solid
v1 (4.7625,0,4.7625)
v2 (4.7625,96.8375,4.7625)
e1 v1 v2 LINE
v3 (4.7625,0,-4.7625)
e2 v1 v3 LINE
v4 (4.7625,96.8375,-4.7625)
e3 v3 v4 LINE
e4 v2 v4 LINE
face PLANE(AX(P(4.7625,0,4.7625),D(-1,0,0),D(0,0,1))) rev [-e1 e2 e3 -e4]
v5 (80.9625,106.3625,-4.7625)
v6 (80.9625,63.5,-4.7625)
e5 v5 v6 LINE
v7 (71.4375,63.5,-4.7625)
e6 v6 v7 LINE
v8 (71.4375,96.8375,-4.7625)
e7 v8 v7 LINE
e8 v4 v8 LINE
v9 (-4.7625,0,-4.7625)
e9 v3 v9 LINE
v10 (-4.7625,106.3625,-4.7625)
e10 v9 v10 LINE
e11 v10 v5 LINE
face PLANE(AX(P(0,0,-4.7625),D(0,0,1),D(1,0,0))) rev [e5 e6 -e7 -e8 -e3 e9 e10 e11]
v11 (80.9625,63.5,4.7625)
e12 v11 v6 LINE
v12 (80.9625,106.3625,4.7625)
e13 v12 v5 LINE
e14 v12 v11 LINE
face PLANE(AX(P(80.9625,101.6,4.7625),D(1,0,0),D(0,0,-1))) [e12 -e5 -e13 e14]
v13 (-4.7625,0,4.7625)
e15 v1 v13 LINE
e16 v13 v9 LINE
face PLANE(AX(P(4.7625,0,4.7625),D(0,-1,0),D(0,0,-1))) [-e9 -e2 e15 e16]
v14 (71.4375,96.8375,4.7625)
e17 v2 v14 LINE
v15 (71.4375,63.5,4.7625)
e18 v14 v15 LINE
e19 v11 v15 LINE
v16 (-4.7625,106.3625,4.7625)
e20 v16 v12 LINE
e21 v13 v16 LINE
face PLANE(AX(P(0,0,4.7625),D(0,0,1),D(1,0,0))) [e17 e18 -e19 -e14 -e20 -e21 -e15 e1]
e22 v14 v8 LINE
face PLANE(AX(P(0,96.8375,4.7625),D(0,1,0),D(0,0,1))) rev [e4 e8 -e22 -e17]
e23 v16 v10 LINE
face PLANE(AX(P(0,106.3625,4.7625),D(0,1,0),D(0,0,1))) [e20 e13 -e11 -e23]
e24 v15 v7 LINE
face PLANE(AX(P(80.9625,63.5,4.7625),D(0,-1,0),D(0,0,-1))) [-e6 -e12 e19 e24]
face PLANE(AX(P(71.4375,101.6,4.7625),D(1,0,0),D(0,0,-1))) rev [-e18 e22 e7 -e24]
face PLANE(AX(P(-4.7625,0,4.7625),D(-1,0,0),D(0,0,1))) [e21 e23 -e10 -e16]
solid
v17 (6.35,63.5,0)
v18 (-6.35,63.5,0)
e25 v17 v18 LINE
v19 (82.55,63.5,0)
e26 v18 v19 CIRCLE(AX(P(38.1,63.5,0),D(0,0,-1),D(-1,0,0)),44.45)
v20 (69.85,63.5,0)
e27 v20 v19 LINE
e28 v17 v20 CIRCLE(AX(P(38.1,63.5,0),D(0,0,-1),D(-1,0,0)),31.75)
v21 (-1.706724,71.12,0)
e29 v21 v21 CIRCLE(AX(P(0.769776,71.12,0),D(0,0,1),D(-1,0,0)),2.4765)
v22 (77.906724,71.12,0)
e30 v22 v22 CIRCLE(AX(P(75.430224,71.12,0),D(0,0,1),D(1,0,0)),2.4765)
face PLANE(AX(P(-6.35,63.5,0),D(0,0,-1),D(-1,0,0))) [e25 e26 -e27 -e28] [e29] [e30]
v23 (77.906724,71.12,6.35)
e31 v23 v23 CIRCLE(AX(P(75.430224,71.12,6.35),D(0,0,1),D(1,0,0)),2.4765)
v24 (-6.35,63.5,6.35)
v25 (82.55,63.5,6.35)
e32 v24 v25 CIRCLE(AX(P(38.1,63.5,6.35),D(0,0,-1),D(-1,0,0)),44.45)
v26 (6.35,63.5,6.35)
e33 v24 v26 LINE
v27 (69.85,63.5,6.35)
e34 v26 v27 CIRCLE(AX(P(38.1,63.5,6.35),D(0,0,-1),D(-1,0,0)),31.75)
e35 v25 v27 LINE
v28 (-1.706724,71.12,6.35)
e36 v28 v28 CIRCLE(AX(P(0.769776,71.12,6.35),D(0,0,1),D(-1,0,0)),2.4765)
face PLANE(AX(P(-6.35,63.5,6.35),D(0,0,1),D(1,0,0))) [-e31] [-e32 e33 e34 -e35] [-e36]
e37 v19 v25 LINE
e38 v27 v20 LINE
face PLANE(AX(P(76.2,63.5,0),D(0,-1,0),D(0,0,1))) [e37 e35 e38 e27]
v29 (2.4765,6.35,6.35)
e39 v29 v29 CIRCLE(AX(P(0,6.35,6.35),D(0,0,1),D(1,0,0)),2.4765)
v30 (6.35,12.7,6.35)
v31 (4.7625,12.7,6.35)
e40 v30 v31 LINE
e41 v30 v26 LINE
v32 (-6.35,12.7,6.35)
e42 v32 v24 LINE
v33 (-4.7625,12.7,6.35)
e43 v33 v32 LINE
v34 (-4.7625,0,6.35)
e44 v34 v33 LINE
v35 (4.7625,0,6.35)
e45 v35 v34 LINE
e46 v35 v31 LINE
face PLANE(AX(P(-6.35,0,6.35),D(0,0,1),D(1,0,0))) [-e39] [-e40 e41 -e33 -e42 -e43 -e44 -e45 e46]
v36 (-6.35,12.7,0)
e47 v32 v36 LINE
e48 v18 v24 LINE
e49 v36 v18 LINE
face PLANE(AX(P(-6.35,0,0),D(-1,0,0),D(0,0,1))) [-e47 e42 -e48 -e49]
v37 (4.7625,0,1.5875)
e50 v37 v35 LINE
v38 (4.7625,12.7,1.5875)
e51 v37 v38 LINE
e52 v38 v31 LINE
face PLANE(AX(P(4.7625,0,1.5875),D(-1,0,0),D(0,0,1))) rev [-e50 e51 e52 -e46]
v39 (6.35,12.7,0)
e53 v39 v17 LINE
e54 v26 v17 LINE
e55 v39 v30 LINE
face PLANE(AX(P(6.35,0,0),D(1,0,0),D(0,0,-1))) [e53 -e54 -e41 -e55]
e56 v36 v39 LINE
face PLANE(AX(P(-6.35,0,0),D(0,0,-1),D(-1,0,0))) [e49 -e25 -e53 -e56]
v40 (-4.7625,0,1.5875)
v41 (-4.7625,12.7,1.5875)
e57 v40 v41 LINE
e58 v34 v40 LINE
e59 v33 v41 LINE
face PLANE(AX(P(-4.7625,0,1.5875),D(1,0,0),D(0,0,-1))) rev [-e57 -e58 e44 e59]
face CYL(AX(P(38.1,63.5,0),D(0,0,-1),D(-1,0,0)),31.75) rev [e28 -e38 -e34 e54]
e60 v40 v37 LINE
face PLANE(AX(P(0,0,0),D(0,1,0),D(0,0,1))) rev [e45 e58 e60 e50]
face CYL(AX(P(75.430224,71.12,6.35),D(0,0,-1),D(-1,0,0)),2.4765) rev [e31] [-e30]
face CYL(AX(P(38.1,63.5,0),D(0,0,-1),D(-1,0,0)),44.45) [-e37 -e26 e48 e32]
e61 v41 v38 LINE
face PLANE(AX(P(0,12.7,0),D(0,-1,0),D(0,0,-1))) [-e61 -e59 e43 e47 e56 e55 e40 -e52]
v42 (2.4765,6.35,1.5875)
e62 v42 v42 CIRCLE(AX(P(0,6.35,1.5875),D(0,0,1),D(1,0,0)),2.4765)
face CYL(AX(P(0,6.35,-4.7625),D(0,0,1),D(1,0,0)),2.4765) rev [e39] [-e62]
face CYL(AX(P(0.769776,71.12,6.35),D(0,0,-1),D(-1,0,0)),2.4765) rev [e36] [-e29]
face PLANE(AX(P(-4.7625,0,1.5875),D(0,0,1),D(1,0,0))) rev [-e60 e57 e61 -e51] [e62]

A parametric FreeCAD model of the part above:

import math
import FreeCAD as App
import Part
import Sketcher
Q = App.Units.Quantity

doc = App.newDocument("Part")
body = doc.addObject("PartDesign::Body", "Body")

sketch1 = body.newObject("Sketcher::SketchObject", "Sketch")
sketch1.AttachmentSupport = (doc.getObject("XY_Plane"), [""])
sketch1.MapMode = "FlatFace"
sketch1.addGeometry(Part.LineSegment(App.Vector(5, 0, 0), App.Vector(5, 97, 0)), False)
sketch1.addGeometry(Part.LineSegment(App.Vector(5, 97, 0), App.Vector(71, 97, 0)), False)
sketch1.addGeometry(Part.LineSegment(App.Vector(71, 97, 0), App.Vector(71, 64, 0)), False)
sketch1.addGeometry(Part.LineSegment(App.Vector(71, 64, 0), App.Vector(81, 64, 0)), False)
sketch1.addGeometry(Part.LineSegment(App.Vector(81, 64, 0), App.Vector(81, 106, 0)), False)
sketch1.addGeometry(Part.LineSegment(App.Vector(81, 106, 0), App.Vector(-5, 106, 0)), False)
sketch1.addGeometry(Part.LineSegment(App.Vector(-5, 106, 0), App.Vector(-5, 0, 0)), False)
sketch1.addGeometry(Part.LineSegment(App.Vector(-5, 0, 0), App.Vector(5, 0, 0)), False)
sketch1.addConstraint(Sketcher.Constraint("Coincident", 0, 2, 1, 1))
sketch1.addConstraint(Sketcher.Constraint("Coincident", 1, 2, 2, 1))
sketch1.addConstraint(Sketcher.Constraint("Coincident", 2, 2, 3, 1))
sketch1.addConstraint(Sketcher.Constraint("Coincident", 3, 2, 4, 1))
sketch1.addConstraint(Sketcher.Constraint("Coincident", 4, 2, 5, 1))
sketch1.addConstraint(Sketcher.Constraint("Coincident", 5, 2, 6, 1))
sketch1.addConstraint(Sketcher.Constraint("Coincident", 6, 2, 7, 1))
sketch1.addConstraint(Sketcher.Constraint("Coincident", 7, 2, 0, 1))
sketch1.addConstraint(Sketcher.Constraint("Vertical", 0))
sketch1.addConstraint(Sketcher.Constraint("Horizontal", 1))
sketch1.addConstraint(Sketcher.Constraint("Vertical", 2))
sketch1.addConstraint(Sketcher.Constraint("Horizontal", 3))
sketch1.addConstraint(Sketcher.Constraint("Vertical", 4))
sketch1.addConstraint(Sketcher.Constraint("Horizontal", 5))
sketch1.addConstraint(Sketcher.Constraint("Vertical", 6))
sketch1.addConstraint(Sketcher.Constraint("Horizontal", 7))
sketch1.addConstraint(Sketcher.Constraint("Symmetric", 6, 2, 7, 2, -1, 1))
sketch1.addConstraint(Sketcher.Constraint("Equal", 3, 7))
sketch1.addConstraint(Sketcher.Constraint("DistanceX", 0, 2, 3, 2, Q("3 in")))
sketch1.addConstraint(Sketcher.Constraint("DistanceY", -1, 1, 2, 2, Q("2.5 in")))
sketch1.addConstraint(Sketcher.Constraint("DistanceX", 1, 1, 1, 2, Q("2.625 in")))
sketch1.addConstraint(Sketcher.Constraint("DistanceY", 0, 1, 0, 2, Q("3.8125 in")))
sketch1.addConstraint(Sketcher.Constraint("DistanceY", 4, 1, 4, 2, Q("1.6875 in")))
pad1 = body.newObject("PartDesign::Pad", "Pad")
pad1.Profile = sketch1
pad1.Length = Q("0.375 in")
pad1.Midplane = True
body2 = doc.addObject("PartDesign::Body", "Body001")

sketch2 = body2.newObject("Sketcher::SketchObject", "Sketch001")
sketch2.AttachmentSupport = (doc.getObject("XZ_Plane001"), [""])
sketch2.MapMode = "FlatFace"
sketch2.addGeometry(Part.LineSegment(App.Vector(-6, 0, 0), App.Vector(-6, 6, 0)), False)
sketch2.addGeometry(Part.LineSegment(App.Vector(-6, 6, 0), App.Vector(6, 6, 0)), False)
sketch2.addGeometry(Part.LineSegment(App.Vector(6, 6, 0), App.Vector(6, 0, 0)), False)
sketch2.addGeometry(Part.LineSegment(App.Vector(6, 0, 0), App.Vector(-6, 0, 0)), False)
sketch2.addConstraint(Sketcher.Constraint("Coincident", 0, 2, 1, 1))
sketch2.addConstraint(Sketcher.Constraint("Coincident", 1, 2, 2, 1))
sketch2.addConstraint(Sketcher.Constraint("Coincident", 2, 2, 3, 1))
sketch2.addConstraint(Sketcher.Constraint("Coincident", 3, 2, 0, 1))
sketch2.addConstraint(Sketcher.Constraint("Vertical", 0))
sketch2.addConstraint(Sketcher.Constraint("Horizontal", 1))
sketch2.addConstraint(Sketcher.Constraint("Vertical", 2))
sketch2.addConstraint(Sketcher.Constraint("Horizontal", 3))
sketch2.addConstraint(Sketcher.Constraint("Symmetric", 2, 2, 3, 2, -1, 1))
sketch2.addConstraint(Sketcher.Constraint("DistanceX", 1, 1, 1, 2, Q("0.5 in")))
sketch2.addConstraint(Sketcher.Constraint("DistanceY", 0, 1, 0, 2, Q("0.25 in")))

sketch3 = body2.newObject("Sketcher::SketchObject", "Sketch002")
sketch3.AttachmentSupport = (doc.getObject("XY_Plane001"), [""])
sketch3.MapMode = "FlatFace"
sketch3.addGeometry(Part.LineSegment(App.Vector(0, 0, 0), App.Vector(0, 64, 0)), False)
sketch3.addGeometry(Part.ArcOfCircle(Part.Circle(App.Vector(38, 64, 0), App.Vector(0, 0, 1), 38), math.radians(0), math.radians(180)), False)
sketch3.addConstraint(Sketcher.Constraint("Tangent", 0, 2, 1, 2))
sketch3.addConstraint(Sketcher.Constraint("Vertical", 0))
sketch3.addConstraint(Sketcher.Constraint("Coincident", 0, 1, -1, 1))
sketch3.addConstraint(Sketcher.Constraint("Horizontal", 0, 2, 1, 1))
sketch3.addConstraint(Sketcher.Constraint("Radius", 1, Q("1.5 in")))
sketch3.addConstraint(Sketcher.Constraint("DistanceY", 0, 1, 0, 2, Q("2.5 in")))
doc.recompute()

additivepipe = body2.newObject("PartDesign::AdditivePipe", "AdditivePipe")
additivepipe.Profile = sketch2
additivepipe.Spine = (sketch3, ["Edge1", "Edge2"])

sketch4 = body2.newObject("Sketcher::SketchObject", "Sketch003")
sketch4.AttachmentSupport = (doc.getObject("XY_Plane001"), [""])
sketch4.MapMode = "FlatFace"
sketch4.addGeometry(Part.Circle(App.Vector(75.4, 71.1, 0), App.Vector(0, 0, 1), 2.5), False)
sketch4.addGeometry(Part.Circle(App.Vector(0.8, 71.1, 0), App.Vector(0, 0, 1), 2.5), False)
sketch4.addConstraint(Sketcher.Constraint("Equal", 0, 1))
sketch4.addConstraint(Sketcher.Constraint("Horizontal", 0, 3, 1, 3))
sketch4.addConstraint(Sketcher.Constraint("Diameter", 0, Q("0.195 in")))
sketch4.addConstraint(Sketcher.Constraint("DistanceY", -1, 1, 0, 3, Q("2.8 in")))
sketch4.addConstraint(Sketcher.Constraint("DistanceX", -1, 1, 0, 3, 75.430224))
sketch4.addConstraint(Sketcher.Constraint("DistanceX", -1, 1, 1, 3, 0.769776))
pocket1 = body2.newObject("PartDesign::Pocket", "Pocket")
pocket1.Profile = sketch4
pocket1.Type = "ThroughAll"
pocket1.Reversed = True

sketch5 = body2.newObject("Sketcher::SketchObject", "Sketch004")
sketch5.AttachmentSupport = (doc.getObject("XZ_Plane001"), [""])
sketch5.MapMode = "FlatFace"
sketch5.addGeometry(Part.LineSegment(App.Vector(-6, 6, 0), App.Vector(-6, 0, 0)), False)
sketch5.addGeometry(Part.LineSegment(App.Vector(-6, 0, 0), App.Vector(6, 0, 0)), False)
sketch5.addGeometry(Part.LineSegment(App.Vector(6, 0, 0), App.Vector(6, 6, 0)), False)
sketch5.addGeometry(Part.LineSegment(App.Vector(6, 6, 0), App.Vector(-6, 6, 0)), False)
sketch5.addConstraint(Sketcher.Constraint("Coincident", 0, 2, 1, 1))
sketch5.addConstraint(Sketcher.Constraint("Coincident", 1, 2, 2, 1))
sketch5.addConstraint(Sketcher.Constraint("Coincident", 2, 2, 3, 1))
sketch5.addConstraint(Sketcher.Constraint("Coincident", 3, 2, 0, 1))
sketch5.addConstraint(Sketcher.Constraint("Vertical", 0))
sketch5.addConstraint(Sketcher.Constraint("Horizontal", 1))
sketch5.addConstraint(Sketcher.Constraint("Vertical", 2))
sketch5.addConstraint(Sketcher.Constraint("Horizontal", 3))
sketch5.addConstraint(Sketcher.Constraint("Symmetric", 0, 2, 1, 2, -1, 1))
sketch5.addConstraint(Sketcher.Constraint("DistanceX", 1, 1, 1, 2, Q("0.5 in")))
sketch5.addConstraint(Sketcher.Constraint("DistanceY", 0, 2, 0, 1, Q("0.25 in")))
pocket2 = body2.newObject("PartDesign::Pocket", "Pocket001")
pocket2.Profile = sketch5
pocket2.Length = Q("0.5 in")

sketch6 = body2.newObject("Sketcher::SketchObject", "Sketch005")
sketch6.AttachmentSupport = (doc.getObject("XZ_Plane001"), [""])
sketch6.MapMode = "FlatFace"
sketch6.AttachmentOffset = App.Placement(App.Vector(0, 0, -0.5 * 25.4), App.Rotation())
sketch6.addGeometry(Part.LineSegment(App.Vector(-4.8, 6.3, 0), App.Vector(-4.8, 1.6, 0)), False)
sketch6.addGeometry(Part.LineSegment(App.Vector(-4.8, 1.6, 0), App.Vector(4.8, 1.6, 0)), False)
sketch6.addGeometry(Part.LineSegment(App.Vector(4.8, 1.6, 0), App.Vector(4.8, 6.3, 0)), False)
sketch6.addGeometry(Part.LineSegment(App.Vector(4.8, 6.3, 0), App.Vector(-4.8, 6.3, 0)), False)
sketch6.addConstraint(Sketcher.Constraint("Coincident", 0, 2, 1, 1))
sketch6.addConstraint(Sketcher.Constraint("Coincident", 1, 2, 2, 1))
sketch6.addConstraint(Sketcher.Constraint("Coincident", 2, 2, 3, 1))
sketch6.addConstraint(Sketcher.Constraint("Coincident", 3, 2, 0, 1))
sketch6.addConstraint(Sketcher.Constraint("Vertical", 0))
sketch6.addConstraint(Sketcher.Constraint("Horizontal", 1))
sketch6.addConstraint(Sketcher.Constraint("Vertical", 2))
sketch6.addConstraint(Sketcher.Constraint("Horizontal", 3))
sketch6.addConstraint(Sketcher.Constraint("DistanceX", 1, 1, 1, 2, Q("0.375 in")))
sketch6.addConstraint(Sketcher.Constraint("DistanceY", 0, 2, 0, 1, Q("0.1875 in")))
sketch6.addConstraint(Sketcher.Constraint("DistanceY", -1, 1, 2, 2, Q("0.25 in")))
sketch6.addConstraint(Sketcher.Constraint("DistanceX", 0, 2, -1, 1, Q("0.1875 in")))
pad2 = body2.newObject("PartDesign::Pad", "Pad001")
pad2.Profile = sketch6
pad2.Length = Q("0.5 in")

sketch7 = body2.newObject("Sketcher::SketchObject", "Sketch006")
sketch7.AttachmentSupport = (doc.getObject("XY_Plane001"), [""])
sketch7.MapMode = "FlatFace"
sketch7.AttachmentOffset = App.Placement(App.Vector(0, 0, 0.25 * 25.4), App.Rotation())
sketch7.addGeometry(Part.Circle(App.Vector(0, 6.3, 0), App.Vector(0, 0, 1), 2.5), False)
sketch7.addConstraint(Sketcher.Constraint("PointOnObject", 0, 3, -2))
sketch7.addConstraint(Sketcher.Constraint("Diameter", 0, Q("0.195 in")))
sketch7.addConstraint(Sketcher.Constraint("DistanceY", -1, 1, 0, 3, Q("0.25 in")))
pocket3 = body2.newObject("PartDesign::Pocket", "Pocket002")
pocket3.Profile = sketch7
pocket3.Type = "ThroughAll"

doc.recompute()
